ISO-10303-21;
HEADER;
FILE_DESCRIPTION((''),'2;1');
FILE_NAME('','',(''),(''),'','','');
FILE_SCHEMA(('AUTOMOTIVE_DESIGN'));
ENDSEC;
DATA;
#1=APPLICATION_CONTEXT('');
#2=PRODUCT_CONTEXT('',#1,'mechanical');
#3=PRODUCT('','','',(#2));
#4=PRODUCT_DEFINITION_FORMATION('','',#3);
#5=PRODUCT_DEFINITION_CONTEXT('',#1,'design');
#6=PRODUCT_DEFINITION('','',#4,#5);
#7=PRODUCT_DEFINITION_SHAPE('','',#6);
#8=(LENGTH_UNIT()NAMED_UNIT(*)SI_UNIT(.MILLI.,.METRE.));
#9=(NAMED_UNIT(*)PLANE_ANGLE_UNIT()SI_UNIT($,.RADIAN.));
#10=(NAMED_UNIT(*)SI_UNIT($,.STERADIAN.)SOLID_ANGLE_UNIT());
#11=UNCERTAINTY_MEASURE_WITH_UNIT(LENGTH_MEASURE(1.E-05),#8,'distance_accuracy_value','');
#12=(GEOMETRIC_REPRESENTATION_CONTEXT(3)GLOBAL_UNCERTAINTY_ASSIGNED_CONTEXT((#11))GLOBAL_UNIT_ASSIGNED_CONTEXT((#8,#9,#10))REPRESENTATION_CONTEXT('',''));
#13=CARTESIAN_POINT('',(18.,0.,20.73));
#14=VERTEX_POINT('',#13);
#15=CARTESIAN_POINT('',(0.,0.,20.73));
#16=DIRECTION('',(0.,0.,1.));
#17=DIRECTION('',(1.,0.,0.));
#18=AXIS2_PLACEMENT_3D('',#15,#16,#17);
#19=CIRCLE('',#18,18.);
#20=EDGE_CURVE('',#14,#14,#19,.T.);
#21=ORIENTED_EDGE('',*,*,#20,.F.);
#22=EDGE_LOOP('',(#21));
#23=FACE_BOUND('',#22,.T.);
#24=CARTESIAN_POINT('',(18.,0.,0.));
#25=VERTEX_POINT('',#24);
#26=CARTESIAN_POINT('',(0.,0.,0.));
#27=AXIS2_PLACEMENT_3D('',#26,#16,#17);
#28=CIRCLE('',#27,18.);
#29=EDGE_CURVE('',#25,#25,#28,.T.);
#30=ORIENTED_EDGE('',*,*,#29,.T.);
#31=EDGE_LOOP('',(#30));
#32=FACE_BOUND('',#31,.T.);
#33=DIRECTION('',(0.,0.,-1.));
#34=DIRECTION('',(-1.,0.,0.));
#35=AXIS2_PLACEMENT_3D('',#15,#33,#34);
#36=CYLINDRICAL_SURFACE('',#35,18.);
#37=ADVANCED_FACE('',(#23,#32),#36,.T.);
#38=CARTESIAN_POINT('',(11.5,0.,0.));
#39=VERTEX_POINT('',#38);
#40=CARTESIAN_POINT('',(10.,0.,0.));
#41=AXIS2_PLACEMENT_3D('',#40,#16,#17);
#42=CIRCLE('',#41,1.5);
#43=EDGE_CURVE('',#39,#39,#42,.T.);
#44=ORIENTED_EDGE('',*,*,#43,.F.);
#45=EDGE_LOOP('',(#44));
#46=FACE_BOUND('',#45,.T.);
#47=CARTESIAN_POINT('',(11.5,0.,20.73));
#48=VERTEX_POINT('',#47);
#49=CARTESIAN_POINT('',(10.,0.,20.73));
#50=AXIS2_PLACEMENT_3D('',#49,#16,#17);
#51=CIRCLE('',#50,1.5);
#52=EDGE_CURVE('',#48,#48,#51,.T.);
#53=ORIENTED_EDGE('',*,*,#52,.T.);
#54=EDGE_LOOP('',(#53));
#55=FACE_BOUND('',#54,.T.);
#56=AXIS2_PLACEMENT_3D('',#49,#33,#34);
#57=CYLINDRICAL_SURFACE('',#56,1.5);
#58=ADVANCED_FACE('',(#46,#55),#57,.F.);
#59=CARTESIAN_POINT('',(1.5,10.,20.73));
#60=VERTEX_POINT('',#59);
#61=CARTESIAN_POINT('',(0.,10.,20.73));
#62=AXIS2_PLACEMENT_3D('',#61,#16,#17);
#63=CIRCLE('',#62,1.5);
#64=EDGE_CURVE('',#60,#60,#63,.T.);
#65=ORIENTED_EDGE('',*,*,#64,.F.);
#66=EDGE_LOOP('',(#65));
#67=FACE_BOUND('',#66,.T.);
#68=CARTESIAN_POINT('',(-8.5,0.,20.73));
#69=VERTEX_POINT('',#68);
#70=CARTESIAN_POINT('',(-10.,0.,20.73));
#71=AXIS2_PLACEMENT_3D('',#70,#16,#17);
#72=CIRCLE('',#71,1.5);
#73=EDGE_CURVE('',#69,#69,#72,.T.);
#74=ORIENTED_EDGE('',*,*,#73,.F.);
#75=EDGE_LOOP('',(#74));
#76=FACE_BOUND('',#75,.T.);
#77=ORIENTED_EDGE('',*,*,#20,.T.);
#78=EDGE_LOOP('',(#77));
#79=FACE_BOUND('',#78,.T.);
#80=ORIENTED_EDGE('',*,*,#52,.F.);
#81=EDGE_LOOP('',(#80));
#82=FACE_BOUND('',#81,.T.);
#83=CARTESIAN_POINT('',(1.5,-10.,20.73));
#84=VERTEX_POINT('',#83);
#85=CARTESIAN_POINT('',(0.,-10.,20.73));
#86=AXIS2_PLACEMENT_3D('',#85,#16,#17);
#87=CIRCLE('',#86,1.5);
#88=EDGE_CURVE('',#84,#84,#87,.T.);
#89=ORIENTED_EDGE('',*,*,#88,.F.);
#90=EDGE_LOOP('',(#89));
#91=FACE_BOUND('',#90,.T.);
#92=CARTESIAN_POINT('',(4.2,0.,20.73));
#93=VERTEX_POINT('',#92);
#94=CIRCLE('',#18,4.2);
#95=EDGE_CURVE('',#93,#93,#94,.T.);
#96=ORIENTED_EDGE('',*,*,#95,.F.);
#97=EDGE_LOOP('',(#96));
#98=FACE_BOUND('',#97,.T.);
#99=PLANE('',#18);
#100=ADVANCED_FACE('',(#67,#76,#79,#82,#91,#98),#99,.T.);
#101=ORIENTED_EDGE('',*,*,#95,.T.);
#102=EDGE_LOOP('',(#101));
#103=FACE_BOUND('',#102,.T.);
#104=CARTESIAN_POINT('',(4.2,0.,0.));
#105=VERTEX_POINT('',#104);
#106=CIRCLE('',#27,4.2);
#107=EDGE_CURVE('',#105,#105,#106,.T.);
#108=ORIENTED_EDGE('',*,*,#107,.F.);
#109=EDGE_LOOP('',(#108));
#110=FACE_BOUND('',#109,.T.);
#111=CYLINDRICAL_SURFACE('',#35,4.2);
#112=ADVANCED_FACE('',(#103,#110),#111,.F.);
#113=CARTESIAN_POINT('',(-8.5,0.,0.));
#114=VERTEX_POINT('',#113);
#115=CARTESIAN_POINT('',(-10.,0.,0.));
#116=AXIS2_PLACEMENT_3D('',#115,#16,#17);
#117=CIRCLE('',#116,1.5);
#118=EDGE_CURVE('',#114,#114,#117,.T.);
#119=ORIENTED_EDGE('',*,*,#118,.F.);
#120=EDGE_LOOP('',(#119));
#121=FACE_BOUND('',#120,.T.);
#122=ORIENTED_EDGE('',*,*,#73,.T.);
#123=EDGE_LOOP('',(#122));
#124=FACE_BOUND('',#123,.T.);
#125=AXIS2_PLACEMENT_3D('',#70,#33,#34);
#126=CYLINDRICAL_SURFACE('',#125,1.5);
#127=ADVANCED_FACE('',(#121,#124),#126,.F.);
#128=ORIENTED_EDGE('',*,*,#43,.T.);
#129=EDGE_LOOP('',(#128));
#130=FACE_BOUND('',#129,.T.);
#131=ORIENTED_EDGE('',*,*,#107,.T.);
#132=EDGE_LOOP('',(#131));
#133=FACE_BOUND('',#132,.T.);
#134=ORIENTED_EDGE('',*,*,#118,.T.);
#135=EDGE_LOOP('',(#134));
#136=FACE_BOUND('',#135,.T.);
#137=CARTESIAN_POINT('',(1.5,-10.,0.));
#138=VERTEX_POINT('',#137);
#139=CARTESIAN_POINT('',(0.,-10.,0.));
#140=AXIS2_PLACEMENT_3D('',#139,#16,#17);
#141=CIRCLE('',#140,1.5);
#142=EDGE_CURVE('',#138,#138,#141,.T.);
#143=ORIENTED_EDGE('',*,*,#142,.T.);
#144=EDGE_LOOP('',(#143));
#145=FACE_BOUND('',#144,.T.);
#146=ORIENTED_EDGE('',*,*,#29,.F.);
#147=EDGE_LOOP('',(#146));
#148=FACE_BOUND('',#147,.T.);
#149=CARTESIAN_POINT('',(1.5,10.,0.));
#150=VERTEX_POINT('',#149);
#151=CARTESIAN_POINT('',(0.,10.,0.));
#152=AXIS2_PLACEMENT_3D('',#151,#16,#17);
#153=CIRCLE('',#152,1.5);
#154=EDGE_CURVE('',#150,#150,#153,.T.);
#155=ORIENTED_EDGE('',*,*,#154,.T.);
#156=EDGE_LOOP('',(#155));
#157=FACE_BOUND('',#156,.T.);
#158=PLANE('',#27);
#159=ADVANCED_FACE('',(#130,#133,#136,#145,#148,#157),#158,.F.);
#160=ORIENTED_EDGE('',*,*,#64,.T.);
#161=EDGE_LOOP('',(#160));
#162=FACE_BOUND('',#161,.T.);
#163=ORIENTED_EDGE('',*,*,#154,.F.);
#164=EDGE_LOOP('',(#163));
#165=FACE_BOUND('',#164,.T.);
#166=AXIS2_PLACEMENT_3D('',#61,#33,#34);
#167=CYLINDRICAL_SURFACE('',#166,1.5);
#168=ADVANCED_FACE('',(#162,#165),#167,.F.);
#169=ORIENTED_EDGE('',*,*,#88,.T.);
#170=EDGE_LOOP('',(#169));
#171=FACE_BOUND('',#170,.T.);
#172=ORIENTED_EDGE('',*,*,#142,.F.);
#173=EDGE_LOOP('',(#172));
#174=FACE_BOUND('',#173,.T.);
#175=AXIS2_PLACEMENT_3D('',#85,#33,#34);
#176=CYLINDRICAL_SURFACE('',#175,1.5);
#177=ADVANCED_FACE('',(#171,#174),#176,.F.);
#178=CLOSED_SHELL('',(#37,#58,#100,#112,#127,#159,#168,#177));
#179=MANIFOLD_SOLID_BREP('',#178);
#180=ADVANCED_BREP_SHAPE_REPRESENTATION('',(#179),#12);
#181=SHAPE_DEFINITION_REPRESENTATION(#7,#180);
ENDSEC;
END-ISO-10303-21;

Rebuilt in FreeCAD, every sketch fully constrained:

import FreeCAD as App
import Part
import Sketcher

doc = App.newDocument("Part")
body = doc.addObject("PartDesign::Body", "Body")

# Sketch on XY plane
sketch1 = body.newObject("Sketcher::SketchObject", "Sketch")
sketch1.AttachmentSupport = (doc.getObject("XY_Plane"), [""])
sketch1.MapMode = "FlatFace"
sketch1.addGeometry([
    Part.Circle(App.Vector(0, 0, 0), App.Vector(0, 0, 1), 18),  # 0
    Part.Circle(App.Vector(0, -10, 0), App.Vector(0, 0, 1), 1.5),  # 1
    Part.Circle(App.Vector(-10, 0, 0), App.Vector(0, 0, 1), 1.5),  # 2
    Part.Circle(App.Vector(0, 0, 0), App.Vector(0, 0, 1), 4.2),  # 3
    Part.Circle(App.Vector(10, 0, 0), App.Vector(0, 0, 1), 1.5),  # 4
    Part.Circle(App.Vector(0, 10, 0), App.Vector(0, 0, 1), 1.5),  # 5
], False)
sketch1.addConstraint([
    Sketcher.Constraint("Coincident", 0, 3, -1, 1),
    Sketcher.Constraint("Coincident", 3, 3, -1, 1),
    Sketcher.Constraint("Equal", 1, 2),
    Sketcher.Constraint("Equal", 2, 4),
    Sketcher.Constraint("Equal", 4, 5),
    Sketcher.Constraint("Symmetric", 2, 3, 4, 3, -1, 1),
    Sketcher.Constraint("Symmetric", 1, 3, 5, 3, -1, 1),
    Sketcher.Constraint("PointOnObject", 1, 3, -2),
    Sketcher.Constraint("PointOnObject", 2, 3, -1),
    Sketcher.Constraint("Diameter", 0, 36.0),
    Sketcher.Constraint("Diameter", 1, 3.0),
    Sketcher.Constraint("Diameter", 3, 8.4),
    Sketcher.Constraint("DistanceY", 1, 3, -1, 1, 10.0),
    Sketcher.Constraint("DistanceX", 2, 3, -1, 1, 10.0),
])
pad1 = body.newObject("PartDesign::Pad", "Pad")
pad1.Profile = sketch1
pad1.Length = 20.73

doc.recompute()
